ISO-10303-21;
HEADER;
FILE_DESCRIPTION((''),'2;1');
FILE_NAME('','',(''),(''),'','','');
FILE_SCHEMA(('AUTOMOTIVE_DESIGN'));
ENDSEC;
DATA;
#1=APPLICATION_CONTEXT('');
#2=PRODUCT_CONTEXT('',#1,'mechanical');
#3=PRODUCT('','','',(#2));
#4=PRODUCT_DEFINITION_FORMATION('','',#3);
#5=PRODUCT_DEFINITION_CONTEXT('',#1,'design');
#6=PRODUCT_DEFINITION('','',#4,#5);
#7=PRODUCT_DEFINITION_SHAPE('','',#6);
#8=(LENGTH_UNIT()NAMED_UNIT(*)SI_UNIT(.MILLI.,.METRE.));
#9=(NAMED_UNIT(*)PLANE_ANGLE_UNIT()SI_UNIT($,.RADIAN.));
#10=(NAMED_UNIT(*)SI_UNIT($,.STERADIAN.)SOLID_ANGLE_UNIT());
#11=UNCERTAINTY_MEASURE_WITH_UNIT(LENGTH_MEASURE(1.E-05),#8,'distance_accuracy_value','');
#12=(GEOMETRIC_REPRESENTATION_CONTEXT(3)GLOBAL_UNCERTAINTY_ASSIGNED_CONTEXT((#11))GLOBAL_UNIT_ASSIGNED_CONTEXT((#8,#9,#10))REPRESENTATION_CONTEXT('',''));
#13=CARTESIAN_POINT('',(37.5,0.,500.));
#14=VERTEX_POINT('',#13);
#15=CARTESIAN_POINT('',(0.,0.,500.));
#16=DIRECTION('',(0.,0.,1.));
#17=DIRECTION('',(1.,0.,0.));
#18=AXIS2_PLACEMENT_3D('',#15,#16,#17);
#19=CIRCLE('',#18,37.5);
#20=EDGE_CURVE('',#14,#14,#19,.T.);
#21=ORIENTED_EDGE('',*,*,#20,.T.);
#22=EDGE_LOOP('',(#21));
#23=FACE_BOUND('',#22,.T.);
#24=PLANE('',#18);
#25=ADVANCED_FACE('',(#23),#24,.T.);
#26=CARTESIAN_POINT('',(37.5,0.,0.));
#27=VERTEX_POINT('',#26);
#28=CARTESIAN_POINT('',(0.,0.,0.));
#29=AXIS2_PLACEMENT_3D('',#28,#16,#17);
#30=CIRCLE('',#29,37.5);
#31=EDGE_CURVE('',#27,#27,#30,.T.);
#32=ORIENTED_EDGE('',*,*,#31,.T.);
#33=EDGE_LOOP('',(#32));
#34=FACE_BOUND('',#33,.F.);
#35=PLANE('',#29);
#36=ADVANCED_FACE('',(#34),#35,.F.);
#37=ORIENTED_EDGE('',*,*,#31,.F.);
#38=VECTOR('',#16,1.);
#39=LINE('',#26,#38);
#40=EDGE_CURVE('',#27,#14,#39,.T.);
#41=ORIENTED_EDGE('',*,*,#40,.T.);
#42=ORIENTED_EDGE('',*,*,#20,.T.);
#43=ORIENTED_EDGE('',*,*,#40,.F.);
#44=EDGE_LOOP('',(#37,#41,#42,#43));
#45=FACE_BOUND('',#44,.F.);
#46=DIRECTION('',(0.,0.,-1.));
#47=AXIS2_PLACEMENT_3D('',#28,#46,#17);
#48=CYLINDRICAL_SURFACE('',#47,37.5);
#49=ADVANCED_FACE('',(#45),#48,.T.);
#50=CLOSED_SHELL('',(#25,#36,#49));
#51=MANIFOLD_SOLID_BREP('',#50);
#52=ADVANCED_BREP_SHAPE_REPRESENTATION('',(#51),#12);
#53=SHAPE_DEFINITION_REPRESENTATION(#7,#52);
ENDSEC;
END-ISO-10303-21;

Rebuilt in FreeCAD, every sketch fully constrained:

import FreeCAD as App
import Part
import Sketcher
from FreeCAD import Vector

doc = App.newDocument("Part")
body = doc.addObject("PartDesign::Body", "Body")

# Sketch on XY plane
sketch1 = doc.addObject("Sketcher::SketchObject", "Sketch")
body.addObject(sketch1)
sketch1.AttachmentSupport = (doc.XY_Plane, [""])
sketch1.MapMode = "FlatFace"
sketch1.addGeometry(Part.Circle(Vector(0, 0, 0), Vector(0, 0, 1), 38), False)
sketch1.addConstraint(Sketcher.Constraint("Coincident", 0, 3, -1, 1))
sketch1.addConstraint(Sketcher.Constraint("Diameter", 0, 75.0))
pad1 = doc.addObject("PartDesign::Pad", "Pad")
body.addObject(pad1)
pad1.Profile = sketch1
pad1.Length = 500

doc.recompute()
